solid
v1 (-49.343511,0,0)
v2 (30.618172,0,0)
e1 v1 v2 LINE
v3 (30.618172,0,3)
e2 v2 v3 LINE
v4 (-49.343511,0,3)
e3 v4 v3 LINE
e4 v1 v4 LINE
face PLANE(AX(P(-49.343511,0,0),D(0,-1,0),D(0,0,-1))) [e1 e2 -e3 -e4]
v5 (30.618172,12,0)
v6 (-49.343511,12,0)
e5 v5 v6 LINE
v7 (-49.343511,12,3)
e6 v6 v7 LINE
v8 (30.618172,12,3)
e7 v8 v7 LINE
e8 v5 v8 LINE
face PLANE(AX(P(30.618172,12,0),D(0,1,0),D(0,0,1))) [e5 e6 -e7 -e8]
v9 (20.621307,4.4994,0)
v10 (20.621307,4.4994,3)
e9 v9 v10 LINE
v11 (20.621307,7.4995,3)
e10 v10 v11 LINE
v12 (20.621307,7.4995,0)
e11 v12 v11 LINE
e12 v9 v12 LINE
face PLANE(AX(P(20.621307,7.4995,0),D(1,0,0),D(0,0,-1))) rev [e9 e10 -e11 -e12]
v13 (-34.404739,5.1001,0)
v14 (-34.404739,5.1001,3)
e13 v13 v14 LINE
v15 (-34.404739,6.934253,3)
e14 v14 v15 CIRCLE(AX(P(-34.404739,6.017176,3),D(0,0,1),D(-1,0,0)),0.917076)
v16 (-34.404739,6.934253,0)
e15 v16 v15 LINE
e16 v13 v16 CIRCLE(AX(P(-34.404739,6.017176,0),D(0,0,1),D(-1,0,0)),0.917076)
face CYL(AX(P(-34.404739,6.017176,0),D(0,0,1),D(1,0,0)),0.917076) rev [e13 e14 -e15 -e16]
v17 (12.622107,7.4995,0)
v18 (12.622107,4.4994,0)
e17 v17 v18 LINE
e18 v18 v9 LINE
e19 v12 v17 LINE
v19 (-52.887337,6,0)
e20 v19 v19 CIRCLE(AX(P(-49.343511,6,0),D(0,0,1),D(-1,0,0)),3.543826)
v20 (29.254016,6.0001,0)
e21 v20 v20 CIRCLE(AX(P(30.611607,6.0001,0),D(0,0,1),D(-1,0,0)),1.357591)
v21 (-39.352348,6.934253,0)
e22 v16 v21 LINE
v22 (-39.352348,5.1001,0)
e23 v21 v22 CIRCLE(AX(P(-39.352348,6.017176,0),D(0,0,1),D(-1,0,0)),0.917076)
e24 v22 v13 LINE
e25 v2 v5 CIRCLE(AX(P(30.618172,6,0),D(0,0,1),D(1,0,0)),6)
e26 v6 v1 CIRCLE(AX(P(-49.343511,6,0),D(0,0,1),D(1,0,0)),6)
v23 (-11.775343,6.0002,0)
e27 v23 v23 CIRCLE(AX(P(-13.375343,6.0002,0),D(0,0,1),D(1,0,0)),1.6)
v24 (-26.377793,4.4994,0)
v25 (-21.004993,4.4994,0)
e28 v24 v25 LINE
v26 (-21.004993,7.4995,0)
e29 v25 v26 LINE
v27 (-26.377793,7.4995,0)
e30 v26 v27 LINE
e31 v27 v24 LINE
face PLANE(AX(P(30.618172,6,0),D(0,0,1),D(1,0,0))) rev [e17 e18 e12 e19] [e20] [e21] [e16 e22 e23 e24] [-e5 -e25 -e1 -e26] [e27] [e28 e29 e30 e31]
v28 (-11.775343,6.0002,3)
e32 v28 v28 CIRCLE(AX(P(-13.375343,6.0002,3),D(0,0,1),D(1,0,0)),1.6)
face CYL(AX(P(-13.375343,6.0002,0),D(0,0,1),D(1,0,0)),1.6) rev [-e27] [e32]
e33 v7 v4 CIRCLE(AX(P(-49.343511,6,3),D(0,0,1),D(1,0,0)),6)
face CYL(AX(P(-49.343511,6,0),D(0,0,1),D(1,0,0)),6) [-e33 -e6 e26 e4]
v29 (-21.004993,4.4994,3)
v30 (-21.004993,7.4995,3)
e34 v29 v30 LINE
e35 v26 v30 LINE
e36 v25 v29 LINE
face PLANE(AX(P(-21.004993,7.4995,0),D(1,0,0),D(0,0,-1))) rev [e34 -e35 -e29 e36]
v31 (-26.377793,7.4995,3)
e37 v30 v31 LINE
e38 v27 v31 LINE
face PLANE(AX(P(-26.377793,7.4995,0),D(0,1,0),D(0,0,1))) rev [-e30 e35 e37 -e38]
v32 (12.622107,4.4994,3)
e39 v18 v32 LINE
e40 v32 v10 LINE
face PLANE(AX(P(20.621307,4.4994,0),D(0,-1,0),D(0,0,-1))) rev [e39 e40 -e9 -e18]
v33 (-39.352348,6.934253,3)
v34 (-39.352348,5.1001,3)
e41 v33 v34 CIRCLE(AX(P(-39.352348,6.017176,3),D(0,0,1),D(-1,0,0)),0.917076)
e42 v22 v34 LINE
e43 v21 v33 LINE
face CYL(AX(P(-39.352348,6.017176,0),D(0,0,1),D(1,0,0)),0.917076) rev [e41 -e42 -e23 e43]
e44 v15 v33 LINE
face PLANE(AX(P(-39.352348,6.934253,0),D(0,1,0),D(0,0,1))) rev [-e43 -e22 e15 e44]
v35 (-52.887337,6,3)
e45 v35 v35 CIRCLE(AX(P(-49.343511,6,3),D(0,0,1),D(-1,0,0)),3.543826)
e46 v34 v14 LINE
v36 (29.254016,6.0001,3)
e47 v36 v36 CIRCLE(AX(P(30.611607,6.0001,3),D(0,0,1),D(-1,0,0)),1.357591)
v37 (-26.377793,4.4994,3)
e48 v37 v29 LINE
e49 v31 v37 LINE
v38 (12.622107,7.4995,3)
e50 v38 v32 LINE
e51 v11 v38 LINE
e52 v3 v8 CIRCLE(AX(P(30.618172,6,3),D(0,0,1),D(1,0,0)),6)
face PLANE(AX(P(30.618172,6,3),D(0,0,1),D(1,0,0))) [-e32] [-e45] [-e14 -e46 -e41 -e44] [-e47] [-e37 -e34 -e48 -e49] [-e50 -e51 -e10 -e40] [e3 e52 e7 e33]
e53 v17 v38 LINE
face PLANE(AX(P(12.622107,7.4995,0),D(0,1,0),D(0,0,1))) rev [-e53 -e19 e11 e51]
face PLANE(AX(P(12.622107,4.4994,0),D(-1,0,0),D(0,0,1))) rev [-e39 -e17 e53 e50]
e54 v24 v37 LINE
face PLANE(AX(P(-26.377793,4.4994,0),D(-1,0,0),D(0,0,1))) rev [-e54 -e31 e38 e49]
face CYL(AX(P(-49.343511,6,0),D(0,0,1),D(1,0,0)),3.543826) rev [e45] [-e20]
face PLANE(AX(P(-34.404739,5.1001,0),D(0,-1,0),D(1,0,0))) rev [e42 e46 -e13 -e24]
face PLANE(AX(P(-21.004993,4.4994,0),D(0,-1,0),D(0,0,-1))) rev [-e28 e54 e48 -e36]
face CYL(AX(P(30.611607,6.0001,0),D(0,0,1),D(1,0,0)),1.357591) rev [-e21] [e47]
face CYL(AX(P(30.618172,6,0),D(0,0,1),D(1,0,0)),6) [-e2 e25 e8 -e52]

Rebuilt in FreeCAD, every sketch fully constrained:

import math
import FreeCAD as App
import Part
import Sketcher

V = App.Vector
Q = App.Units.Quantity

doc = App.newDocument("Part")
body = doc.addObject("PartDesign::Body", "Body")

# Sketch on XY plane
sketch1 = body.newObject("Sketcher::SketchObject", "Sketch")
sketch1.AttachmentSupport = (doc.getObject("XY_Plane"), [""])
sketch1.MapMode = "FlatFace"
sketch1.AttachmentOffset = App.Placement(V(0, 0, 3), App.Rotation())
sketch1.addGeometry(Part.LineSegment(V(30.6, 12, 0), V(-49.3, 12, 0)), False)
sketch1.addGeometry(Part.ArcOfCircle(Part.Circle(V(-49.3, 6, 0), V(0, 0, 1), 6), math.radians(90), math.radians(270)), False)
sketch1.addGeometry(Part.LineSegment(V(-49.3, 0, 0), V(30.6, 0, 0)), False)
sketch1.addGeometry(Part.ArcOfCircle(Part.Circle(V(30.6, 6, 0), V(0, 0, 1), 6), math.radians(-90), math.radians(90)), False)
sketch1.addGeometry(Part.Circle(V(-49.3, 6, 0), V(0, 0, 1), 3.5), False)
sketch1.addGeometry(Part.LineSegment(V(-21, 4.5, 0), V(-26.4, 4.5, 0)), False)
sketch1.addGeometry(Part.LineSegment(V(-26.4, 4.5, 0), V(-26.4, 7.5, 0)), False)
sketch1.addGeometry(Part.LineSegment(V(-26.4, 7.5, 0), V(-21, 7.5, 0)), False)
sketch1.addGeometry(Part.LineSegment(V(-21, 7.5, 0), V(-21, 4.5, 0)), False)
sketch1.addGeometry(Part.LineSegment(V(20.6, 4.5, 0), V(12.6, 4.5, 0)), False)
sketch1.addGeometry(Part.LineSegment(V(12.6, 4.5, 0), V(12.6, 7.5, 0)), False)
sketch1.addGeometry(Part.LineSegment(V(12.6, 7.5, 0), V(20.6, 7.5, 0)), False)
sketch1.addGeometry(Part.LineSegment(V(20.6, 7.5, 0), V(20.6, 4.5, 0)), False)
sketch1.addGeometry(Part.ArcOfCircle(Part.Circle(V(-34.4, 6, 0), V(0, 0, 1), 0.9), math.radians(-90), math.radians(90)), False)
sketch1.addGeometry(Part.LineSegment(V(-34.4, 5.1, 0), V(-39.4, 5.1, 0)), False)
sketch1.addGeometry(Part.ArcOfCircle(Part.Circle(V(-39.4, 6, 0), V(0, 0, 1), 0.9), math.radians(90), math.radians(270)), False)
sketch1.addGeometry(Part.LineSegment(V(-39.4, 6.9, 0), V(-34.4, 6.9, 0)), False)
sketch1.addGeometry(Part.Circle(V(-13.4, 6, 0), V(0, 0, 1), 1.4), False)
sketch1.addGeometry(Part.Circle(V(30.6, 6, 0), V(0, 0, 1), 1.4), False)
sketch1.addConstraint(Sketcher.Constraint("Tangent", 0, 2, 1, 1))
sketch1.addConstraint(Sketcher.Constraint("Tangent", 1, 2, 2, 1))
sketch1.addConstraint(Sketcher.Constraint("Tangent", 2, 2, 3, 1))
sketch1.addConstraint(Sketcher.Constraint("Tangent", 3, 2, 0, 1))
sketch1.addConstraint(Sketcher.Constraint("Coincident", 5, 2, 6, 1))
sketch1.addConstraint(Sketcher.Constraint("Coincident", 6, 2, 7, 1))
sketch1.addConstraint(Sketcher.Constraint("Coincident", 7, 2, 8, 1))
sketch1.addConstraint(Sketcher.Constraint("Coincident", 8, 2, 5, 1))
sketch1.addConstraint(Sketcher.Constraint("Coincident", 9, 2, 10, 1))
sketch1.addConstraint(Sketcher.Constraint("Coincident", 10, 2, 11, 1))
sketch1.addConstraint(Sketcher.Constraint("Coincident", 11, 2, 12, 1))
sketch1.addConstraint(Sketcher.Constraint("Coincident", 12, 2, 9, 1))
sketch1.addConstraint(Sketcher.Constraint("Tangent", 13, 1, 14, 1))
sketch1.addConstraint(Sketcher.Constraint("Tangent", 14, 2, 15, 2))
sketch1.addConstraint(Sketcher.Constraint("Tangent", 15, 1, 16, 1))
sketch1.addConstraint(Sketcher.Constraint("Tangent", 16, 2, 13, 2))
sketch1.addConstraint(Sketcher.Constraint("Horizontal", 0))
sketch1.addConstraint(Sketcher.Constraint("Horizontal", 2))
sketch1.addConstraint(Sketcher.Constraint("Horizontal", 5))
sketch1.addConstraint(Sketcher.Constraint("Vertical", 6))
sketch1.addConstraint(Sketcher.Constraint("Horizontal", 7))
sketch1.addConstraint(Sketcher.Constraint("Vertical", 8))
sketch1.addConstraint(Sketcher.Constraint("Horizontal", 9))
sketch1.addConstraint(Sketcher.Constraint("Vertical", 10))
sketch1.addConstraint(Sketcher.Constraint("Horizontal", 11))
sketch1.addConstraint(Sketcher.Constraint("Vertical", 12))
sketch1.addConstraint(Sketcher.Constraint("Horizontal", 14))
sketch1.addConstraint(Sketcher.Constraint("Horizontal", 16))
sketch1.addConstraint(Sketcher.Constraint("Coincident", 4, 3, 1, 3))
sketch1.addConstraint(Sketcher.Constraint("Equal", 17, 18))
sketch1.addConstraint(Sketcher.Constraint("PointOnObject", 1, 2, -1))
sketch1.addConstraint(Sketcher.Constraint("Horizontal", 8, 2, 9, 2))
sketch1.addConstraint(Sketcher.Constraint("Horizontal", 7, 2, 10, 2))
sketch1.addConstraint(Sketcher.Constraint("Radius", 1, Q("6 mm")))
sketch1.addConstraint(Sketcher.Constraint("Diameter", 4, Q("7.087652 mm")))
sketch1.addConstraint(Sketcher.Constraint("Diameter", 17, Q("2.715182 mm")))
sketch1.addConstraint(Sketcher.Constraint("DistanceX", 5, 2, 5, 1, Q("5.3728 mm")))
sketch1.addConstraint(Sketcher.Constraint("DistanceX", 9, 2, 9, 1, Q("7.9992 mm")))
sketch1.addConstraint(Sketcher.Constraint("DistanceY", 6, 1, 6, 2, Q("3.0001 mm")))
sketch1.addConstraint(Sketcher.Constraint("Radius", 13, Q("0.917076 mm")))
sketch1.addConstraint(Sketcher.Constraint("DistanceX", 14, 2, 14, 1, Q("4.947608 mm")))
sketch1.addConstraint(Sketcher.Constraint("DistanceY", -1, 1, 17, 3, Q("6.0002 mm")))
sketch1.addConstraint(Sketcher.Constraint("DistanceY", -1, 1, 18, 3, Q("6.0001 mm")))
sketch1.addConstraint(Sketcher.Constraint("DistanceY", -1, 1, 5, 2, Q("4.4994 mm")))
sketch1.addConstraint(Sketcher.Constraint("DistanceY", -1, 1, 13, 1, Q("5.1001 mm")))
sketch1.addConstraint(Sketcher.Constraint("DistanceX", 9, 2, 18, 3, Q("17.9895 mm")))
sketch1.addConstraint(Sketcher.Constraint("DistanceX", 0, 2, 0, 1, Q("79.961683 mm")))
sketch1.addConstraint(Sketcher.Constraint("DistanceX", 1, 3, -1, 1, Q("49.343511 mm")))
sketch1.addConstraint(Sketcher.Constraint("DistanceX", 13, 3, -1, 1, Q("34.404739 mm")))
sketch1.addConstraint(Sketcher.Constraint("DistanceX", 17, 3, 18, 3, Q("43.98695 mm")))
sketch1.addConstraint(Sketcher.Constraint("DistanceX", 5, 2, 17, 3, Q("13.00245 mm")))
sketch1.addConstraint(Sketcher.Constraint("DistanceX", 17, 3, -1, 1, Q("13.375343 mm")))
pad1 = body.newObject("PartDesign::Pad", "Pad")
pad1.Profile = sketch1
pad1.Length = 3
pad1.Reversed = True

# Sketch on XY plane
sketch2 = body.newObject("Sketcher::SketchObject", "Sketch001")
sketch2.AttachmentSupport = (doc.getObject("XY_Plane"), [""])
sketch2.MapMode = "FlatFace"
sketch2.AttachmentOffset = App.Placement(V(0, 0, 3), App.Rotation())
sketch2.addGeometry(Part.Circle(V(-13.4, 6, 0), V(0, 0, 1), 1.6), False)
sketch2.addConstraint(Sketcher.Constraint("Diameter", 0, Q("3.2 mm")))
sketch2.addConstraint(Sketcher.Constraint("DistanceY", -1, 1, 0, 3, Q("6.0002 mm")))
sketch2.addConstraint(Sketcher.Constraint("DistanceX", 0, 3, -1, 1, Q("13.375343 mm")))
pocket1 = body.newObject("PartDesign::Pocket", "Pocket")
pocket1.Profile = sketch2
pocket1.Type = "ThroughAll"

doc.recompute()
